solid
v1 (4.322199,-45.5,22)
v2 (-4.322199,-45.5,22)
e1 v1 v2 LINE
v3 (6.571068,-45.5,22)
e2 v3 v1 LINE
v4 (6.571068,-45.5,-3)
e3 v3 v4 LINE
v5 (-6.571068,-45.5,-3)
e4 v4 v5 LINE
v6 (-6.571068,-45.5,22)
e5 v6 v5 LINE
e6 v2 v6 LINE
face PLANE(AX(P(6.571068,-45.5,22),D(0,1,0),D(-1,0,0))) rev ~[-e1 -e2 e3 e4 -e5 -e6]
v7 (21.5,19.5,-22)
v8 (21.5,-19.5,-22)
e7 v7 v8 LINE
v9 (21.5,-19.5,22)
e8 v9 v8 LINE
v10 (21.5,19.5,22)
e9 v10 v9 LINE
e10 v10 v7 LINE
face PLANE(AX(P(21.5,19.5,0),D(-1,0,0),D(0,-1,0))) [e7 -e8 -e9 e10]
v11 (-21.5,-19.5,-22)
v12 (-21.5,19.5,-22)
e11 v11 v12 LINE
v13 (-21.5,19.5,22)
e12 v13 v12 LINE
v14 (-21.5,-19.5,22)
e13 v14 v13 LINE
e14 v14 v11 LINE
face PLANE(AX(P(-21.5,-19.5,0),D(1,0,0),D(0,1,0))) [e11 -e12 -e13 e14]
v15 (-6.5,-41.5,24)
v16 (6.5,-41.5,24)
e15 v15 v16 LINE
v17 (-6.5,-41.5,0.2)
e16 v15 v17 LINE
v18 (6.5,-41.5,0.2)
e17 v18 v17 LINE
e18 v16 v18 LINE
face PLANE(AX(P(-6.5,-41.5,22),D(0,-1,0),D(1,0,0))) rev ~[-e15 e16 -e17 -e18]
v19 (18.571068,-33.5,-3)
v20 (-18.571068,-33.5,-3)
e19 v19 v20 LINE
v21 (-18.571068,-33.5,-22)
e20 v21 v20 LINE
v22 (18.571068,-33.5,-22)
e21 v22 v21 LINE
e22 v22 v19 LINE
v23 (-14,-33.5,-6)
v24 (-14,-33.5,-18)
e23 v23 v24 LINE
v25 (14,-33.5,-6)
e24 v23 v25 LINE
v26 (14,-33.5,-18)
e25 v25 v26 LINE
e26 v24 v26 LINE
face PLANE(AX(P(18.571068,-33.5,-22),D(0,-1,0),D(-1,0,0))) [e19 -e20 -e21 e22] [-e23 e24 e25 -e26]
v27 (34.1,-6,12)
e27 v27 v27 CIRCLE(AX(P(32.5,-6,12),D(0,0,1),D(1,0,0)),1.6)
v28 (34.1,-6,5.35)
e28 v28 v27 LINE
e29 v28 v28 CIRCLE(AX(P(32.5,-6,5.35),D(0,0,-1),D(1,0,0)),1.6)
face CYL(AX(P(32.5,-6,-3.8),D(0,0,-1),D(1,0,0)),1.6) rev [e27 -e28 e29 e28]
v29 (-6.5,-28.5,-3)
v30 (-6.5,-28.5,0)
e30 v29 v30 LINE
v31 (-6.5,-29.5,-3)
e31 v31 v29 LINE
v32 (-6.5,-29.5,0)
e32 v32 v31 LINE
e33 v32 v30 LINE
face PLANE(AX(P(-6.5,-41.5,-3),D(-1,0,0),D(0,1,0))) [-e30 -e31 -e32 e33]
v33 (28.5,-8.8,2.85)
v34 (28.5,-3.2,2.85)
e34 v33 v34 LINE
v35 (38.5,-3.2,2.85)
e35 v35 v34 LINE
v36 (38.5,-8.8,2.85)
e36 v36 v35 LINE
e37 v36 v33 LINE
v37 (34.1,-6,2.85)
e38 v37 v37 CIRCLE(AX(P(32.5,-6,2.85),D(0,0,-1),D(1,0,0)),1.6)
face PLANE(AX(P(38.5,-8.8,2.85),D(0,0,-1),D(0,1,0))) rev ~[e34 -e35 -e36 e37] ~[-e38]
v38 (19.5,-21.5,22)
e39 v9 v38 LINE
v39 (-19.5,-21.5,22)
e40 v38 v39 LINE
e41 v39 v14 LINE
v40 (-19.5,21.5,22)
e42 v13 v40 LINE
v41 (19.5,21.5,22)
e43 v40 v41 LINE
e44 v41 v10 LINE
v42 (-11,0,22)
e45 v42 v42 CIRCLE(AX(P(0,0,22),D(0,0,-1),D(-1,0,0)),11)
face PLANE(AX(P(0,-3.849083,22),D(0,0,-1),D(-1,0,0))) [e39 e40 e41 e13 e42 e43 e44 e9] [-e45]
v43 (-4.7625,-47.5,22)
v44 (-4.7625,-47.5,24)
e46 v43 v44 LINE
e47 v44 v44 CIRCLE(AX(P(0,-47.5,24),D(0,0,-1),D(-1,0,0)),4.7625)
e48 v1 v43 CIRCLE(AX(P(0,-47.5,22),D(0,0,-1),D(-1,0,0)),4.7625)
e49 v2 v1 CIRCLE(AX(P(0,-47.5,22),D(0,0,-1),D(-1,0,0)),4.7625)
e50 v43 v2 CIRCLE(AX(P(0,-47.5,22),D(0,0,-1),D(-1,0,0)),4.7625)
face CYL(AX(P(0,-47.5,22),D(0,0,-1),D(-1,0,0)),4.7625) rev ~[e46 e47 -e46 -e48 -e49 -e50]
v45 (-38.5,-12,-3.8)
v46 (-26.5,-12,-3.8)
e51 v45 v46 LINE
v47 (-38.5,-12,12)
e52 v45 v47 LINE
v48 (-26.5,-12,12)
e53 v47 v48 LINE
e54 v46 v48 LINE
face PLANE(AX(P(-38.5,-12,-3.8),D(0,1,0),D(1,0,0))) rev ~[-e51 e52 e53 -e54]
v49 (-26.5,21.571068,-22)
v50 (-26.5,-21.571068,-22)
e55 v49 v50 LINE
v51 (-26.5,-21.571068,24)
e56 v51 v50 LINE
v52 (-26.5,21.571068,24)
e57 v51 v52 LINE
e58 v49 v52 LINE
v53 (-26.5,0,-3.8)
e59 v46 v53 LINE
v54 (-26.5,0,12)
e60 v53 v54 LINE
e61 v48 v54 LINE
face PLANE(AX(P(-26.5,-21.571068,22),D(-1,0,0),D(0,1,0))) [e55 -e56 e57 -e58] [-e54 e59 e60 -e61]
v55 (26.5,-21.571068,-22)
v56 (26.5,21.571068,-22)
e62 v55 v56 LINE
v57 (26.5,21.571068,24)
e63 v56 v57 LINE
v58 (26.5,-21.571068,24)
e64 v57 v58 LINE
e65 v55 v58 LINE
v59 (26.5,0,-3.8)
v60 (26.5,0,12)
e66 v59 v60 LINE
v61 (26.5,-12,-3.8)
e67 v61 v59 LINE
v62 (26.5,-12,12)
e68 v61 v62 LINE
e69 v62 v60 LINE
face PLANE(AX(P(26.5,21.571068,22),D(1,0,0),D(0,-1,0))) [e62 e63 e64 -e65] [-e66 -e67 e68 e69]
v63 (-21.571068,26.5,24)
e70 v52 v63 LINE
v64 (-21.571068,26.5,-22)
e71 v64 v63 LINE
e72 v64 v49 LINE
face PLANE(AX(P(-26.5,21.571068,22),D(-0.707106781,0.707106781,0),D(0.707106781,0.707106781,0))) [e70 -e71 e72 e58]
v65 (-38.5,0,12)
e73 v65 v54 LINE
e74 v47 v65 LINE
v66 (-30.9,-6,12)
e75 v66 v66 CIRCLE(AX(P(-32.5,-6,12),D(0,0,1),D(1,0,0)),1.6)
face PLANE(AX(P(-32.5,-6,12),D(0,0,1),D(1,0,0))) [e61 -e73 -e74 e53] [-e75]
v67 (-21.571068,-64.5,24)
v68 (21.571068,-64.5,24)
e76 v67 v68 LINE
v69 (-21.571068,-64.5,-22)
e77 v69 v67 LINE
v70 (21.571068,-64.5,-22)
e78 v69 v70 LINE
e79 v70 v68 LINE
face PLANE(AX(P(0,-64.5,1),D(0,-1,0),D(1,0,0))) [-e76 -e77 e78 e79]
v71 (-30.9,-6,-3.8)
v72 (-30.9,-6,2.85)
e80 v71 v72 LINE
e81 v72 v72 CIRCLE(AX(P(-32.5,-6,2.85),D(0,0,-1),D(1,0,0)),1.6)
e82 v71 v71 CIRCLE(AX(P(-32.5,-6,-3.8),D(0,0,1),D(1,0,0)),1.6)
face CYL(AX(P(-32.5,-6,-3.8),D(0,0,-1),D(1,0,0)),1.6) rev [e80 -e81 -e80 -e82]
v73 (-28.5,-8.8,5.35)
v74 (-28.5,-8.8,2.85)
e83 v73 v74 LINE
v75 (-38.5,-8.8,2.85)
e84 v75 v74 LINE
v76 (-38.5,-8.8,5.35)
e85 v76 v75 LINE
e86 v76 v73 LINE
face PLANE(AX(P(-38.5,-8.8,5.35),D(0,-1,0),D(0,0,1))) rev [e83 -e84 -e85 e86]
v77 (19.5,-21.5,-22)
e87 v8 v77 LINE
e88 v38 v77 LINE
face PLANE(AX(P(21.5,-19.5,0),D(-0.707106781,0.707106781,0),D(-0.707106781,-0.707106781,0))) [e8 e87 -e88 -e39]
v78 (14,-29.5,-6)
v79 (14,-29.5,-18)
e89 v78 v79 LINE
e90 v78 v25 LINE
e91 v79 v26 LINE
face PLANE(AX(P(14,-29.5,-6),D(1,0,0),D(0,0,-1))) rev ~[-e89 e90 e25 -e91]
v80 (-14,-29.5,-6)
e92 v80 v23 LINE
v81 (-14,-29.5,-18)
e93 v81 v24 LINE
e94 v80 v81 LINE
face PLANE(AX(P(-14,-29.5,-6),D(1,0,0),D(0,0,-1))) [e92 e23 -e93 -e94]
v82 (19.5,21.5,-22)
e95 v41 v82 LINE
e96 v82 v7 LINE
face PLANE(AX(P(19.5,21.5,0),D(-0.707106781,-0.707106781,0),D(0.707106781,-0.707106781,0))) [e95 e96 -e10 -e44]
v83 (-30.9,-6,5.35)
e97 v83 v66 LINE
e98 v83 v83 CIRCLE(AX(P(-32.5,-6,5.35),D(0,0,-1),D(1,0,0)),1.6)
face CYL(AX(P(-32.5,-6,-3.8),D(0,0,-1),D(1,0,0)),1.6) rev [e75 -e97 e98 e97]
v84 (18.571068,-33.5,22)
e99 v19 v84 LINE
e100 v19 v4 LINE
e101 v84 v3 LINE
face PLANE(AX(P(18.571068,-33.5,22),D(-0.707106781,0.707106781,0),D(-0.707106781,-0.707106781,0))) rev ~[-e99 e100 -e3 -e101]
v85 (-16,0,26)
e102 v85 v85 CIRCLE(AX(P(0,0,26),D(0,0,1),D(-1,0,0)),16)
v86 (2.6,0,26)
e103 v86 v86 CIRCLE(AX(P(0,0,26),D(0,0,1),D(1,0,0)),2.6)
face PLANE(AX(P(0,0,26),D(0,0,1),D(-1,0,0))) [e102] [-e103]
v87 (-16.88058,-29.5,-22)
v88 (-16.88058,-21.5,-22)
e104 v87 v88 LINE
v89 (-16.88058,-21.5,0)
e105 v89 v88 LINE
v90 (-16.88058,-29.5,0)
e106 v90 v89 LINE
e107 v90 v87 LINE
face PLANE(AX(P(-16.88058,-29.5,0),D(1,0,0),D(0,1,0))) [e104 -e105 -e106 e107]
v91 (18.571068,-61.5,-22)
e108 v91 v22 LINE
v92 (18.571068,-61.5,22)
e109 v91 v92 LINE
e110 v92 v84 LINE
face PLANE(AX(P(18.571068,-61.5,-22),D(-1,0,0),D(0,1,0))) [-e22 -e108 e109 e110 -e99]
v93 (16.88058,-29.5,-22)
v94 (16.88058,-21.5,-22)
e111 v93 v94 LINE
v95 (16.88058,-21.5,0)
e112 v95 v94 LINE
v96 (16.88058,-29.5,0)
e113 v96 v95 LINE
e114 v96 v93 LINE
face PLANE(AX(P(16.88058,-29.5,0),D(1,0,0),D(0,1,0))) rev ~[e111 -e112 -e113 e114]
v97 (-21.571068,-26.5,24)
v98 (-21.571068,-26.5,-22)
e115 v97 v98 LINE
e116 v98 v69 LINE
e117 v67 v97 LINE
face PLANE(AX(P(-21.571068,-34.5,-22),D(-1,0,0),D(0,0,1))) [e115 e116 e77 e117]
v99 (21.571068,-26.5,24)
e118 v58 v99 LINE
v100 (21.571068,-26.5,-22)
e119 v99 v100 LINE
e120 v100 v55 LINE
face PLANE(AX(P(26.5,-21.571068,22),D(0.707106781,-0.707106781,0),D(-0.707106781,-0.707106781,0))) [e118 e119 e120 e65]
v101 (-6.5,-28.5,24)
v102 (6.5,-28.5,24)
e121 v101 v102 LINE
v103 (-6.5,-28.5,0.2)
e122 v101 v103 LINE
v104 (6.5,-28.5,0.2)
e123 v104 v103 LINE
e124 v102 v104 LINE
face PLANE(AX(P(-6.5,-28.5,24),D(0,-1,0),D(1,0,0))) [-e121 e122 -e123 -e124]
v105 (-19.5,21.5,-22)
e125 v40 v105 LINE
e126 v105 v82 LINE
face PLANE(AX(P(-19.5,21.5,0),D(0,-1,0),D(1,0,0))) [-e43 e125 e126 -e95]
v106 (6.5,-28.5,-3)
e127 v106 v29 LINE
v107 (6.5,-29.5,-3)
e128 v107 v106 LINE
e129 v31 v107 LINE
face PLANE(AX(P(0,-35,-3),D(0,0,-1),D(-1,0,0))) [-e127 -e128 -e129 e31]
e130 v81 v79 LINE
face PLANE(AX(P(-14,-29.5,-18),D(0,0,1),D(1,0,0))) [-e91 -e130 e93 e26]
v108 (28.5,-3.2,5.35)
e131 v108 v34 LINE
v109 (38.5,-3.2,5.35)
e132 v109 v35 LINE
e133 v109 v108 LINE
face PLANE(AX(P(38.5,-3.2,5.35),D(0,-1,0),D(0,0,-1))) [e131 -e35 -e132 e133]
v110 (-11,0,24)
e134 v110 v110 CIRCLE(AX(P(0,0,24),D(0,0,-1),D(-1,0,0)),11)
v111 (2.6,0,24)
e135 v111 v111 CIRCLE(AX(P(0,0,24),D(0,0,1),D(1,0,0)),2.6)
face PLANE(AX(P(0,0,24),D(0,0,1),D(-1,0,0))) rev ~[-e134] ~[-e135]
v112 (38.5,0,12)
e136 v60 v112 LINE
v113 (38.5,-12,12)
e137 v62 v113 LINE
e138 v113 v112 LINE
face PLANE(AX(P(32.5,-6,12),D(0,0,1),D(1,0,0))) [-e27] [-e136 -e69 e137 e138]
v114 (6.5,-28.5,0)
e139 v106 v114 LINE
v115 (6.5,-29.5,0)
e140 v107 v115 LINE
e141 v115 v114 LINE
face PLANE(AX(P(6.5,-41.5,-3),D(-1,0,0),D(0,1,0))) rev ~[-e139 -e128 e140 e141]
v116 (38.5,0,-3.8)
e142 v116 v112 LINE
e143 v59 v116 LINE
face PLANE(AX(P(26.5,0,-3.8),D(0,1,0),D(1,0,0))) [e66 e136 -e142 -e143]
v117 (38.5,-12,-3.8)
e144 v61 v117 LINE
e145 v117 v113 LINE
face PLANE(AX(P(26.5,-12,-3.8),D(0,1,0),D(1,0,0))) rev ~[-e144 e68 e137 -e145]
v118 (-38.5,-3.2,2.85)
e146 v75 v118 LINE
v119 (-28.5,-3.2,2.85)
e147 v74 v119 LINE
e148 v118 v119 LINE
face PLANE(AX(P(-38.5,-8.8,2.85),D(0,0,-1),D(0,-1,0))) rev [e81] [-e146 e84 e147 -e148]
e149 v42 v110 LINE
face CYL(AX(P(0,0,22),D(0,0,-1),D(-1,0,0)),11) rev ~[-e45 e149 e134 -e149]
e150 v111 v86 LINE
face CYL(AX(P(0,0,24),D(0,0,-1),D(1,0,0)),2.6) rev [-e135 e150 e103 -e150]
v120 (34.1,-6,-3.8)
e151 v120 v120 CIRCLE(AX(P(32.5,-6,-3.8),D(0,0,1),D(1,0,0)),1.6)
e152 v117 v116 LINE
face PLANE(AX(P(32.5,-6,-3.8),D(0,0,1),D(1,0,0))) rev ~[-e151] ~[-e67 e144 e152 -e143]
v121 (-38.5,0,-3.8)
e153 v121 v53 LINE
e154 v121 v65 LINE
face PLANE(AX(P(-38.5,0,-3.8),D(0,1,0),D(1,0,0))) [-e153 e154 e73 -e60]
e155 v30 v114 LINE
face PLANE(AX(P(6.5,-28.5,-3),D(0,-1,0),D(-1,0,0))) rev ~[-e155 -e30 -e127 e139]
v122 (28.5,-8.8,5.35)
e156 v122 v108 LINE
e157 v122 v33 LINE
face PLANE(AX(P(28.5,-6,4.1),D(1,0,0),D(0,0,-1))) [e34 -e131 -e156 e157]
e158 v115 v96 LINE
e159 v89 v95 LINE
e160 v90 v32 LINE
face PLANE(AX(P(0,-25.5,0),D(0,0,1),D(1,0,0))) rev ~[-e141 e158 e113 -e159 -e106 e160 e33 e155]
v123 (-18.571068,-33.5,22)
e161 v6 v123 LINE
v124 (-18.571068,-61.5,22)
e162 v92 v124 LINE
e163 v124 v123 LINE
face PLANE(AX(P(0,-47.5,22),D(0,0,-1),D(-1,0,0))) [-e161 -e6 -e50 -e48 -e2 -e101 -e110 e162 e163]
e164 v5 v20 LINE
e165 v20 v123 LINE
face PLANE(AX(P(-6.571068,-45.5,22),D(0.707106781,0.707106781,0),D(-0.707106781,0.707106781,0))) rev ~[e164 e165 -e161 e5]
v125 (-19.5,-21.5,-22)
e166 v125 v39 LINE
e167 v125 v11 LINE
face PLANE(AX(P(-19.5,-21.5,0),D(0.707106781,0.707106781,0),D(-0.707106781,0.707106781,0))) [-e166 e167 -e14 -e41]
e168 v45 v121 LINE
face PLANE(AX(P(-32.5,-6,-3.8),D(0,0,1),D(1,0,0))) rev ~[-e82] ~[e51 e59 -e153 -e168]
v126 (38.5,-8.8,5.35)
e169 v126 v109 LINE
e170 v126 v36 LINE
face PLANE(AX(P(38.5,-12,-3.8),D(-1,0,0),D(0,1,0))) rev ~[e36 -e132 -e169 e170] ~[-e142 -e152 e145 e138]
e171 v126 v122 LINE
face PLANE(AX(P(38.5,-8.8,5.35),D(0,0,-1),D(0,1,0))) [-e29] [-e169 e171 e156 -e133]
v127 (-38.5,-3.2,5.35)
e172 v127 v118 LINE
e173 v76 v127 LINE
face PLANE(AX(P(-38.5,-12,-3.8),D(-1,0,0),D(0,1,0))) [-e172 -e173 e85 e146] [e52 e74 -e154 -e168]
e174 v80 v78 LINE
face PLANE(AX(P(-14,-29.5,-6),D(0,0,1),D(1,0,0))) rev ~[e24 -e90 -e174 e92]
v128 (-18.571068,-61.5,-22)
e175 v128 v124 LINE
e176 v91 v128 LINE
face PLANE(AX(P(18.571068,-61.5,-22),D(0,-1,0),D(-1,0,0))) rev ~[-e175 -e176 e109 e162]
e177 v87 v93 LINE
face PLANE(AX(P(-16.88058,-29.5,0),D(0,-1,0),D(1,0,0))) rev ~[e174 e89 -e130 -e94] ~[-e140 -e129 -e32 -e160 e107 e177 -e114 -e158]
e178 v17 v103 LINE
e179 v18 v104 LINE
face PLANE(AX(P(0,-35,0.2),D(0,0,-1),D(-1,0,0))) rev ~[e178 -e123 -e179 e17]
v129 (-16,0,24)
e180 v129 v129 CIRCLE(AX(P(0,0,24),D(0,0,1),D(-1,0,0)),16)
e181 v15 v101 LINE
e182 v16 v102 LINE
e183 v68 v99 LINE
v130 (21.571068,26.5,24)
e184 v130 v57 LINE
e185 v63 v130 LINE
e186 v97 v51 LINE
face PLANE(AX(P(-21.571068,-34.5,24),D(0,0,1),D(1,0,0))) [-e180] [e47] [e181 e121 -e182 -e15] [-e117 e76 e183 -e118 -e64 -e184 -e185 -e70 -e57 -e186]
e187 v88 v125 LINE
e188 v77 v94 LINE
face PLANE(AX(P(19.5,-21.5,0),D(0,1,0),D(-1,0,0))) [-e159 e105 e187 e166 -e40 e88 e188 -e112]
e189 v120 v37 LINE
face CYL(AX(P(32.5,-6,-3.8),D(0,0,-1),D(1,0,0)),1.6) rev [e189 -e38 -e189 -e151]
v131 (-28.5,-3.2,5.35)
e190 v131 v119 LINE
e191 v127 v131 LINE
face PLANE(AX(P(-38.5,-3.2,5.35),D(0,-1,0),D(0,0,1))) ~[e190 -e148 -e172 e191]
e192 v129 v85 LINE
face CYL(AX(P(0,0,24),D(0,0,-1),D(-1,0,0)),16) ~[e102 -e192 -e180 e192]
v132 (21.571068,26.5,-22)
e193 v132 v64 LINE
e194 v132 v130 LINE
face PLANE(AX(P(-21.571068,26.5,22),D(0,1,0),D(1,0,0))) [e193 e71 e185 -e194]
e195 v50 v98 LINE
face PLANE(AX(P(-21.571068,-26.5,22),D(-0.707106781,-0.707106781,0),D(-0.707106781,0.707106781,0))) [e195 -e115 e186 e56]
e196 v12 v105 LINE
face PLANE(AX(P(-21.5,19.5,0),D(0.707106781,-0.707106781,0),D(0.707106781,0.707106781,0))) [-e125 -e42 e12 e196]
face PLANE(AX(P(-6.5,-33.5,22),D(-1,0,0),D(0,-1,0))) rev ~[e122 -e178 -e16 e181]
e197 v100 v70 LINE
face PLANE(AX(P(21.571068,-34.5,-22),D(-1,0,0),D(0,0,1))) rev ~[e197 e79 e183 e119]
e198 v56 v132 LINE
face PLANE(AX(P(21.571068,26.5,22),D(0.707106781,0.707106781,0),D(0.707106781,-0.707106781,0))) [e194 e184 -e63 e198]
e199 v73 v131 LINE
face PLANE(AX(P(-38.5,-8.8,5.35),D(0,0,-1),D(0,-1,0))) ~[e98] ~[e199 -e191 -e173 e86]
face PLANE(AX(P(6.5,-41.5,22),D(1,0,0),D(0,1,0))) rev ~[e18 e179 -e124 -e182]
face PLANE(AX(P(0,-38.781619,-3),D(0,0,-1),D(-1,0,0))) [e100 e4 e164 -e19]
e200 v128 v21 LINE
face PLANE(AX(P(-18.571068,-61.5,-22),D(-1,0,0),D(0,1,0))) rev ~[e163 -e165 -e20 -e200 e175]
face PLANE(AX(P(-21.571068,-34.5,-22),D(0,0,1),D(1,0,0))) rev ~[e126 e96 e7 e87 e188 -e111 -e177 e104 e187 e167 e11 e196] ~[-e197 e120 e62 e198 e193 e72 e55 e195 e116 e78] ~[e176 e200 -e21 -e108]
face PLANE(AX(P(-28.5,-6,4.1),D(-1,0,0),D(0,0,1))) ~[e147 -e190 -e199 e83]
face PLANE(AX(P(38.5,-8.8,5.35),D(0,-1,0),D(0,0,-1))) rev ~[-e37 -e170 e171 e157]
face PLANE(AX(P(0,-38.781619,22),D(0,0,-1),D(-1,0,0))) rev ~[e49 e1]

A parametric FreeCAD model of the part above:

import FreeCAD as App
import Part
import Sketcher

V = App.Vector
Q = App.Units.Quantity

doc = App.newDocument("Part")
body = doc.addObject("PartDesign::Body", "Body")

# Sketch on XY plane
sketch1 = body.newObject("Sketcher::SketchObject", "Sketch")
sketch1.AttachmentSupport = (doc.getObject("XY_Plane"), [""])
sketch1.MapMode = "FlatFace"
sketch1.addGeometry(Part.LineSegment(V(26.5, -21.6, 0), V(26.5, 21.6, 0)), False)
sketch1.addGeometry(Part.LineSegment(V(26.5, 21.6, 0), V(21.6, 26.5, 0)), False)
sketch1.addGeometry(Part.LineSegment(V(21.6, 26.5, 0), V(-21.6, 26.5, 0)), False)
sketch1.addGeometry(Part.LineSegment(V(-21.6, 26.5, 0), V(-26.5, 21.6, 0)), False)
sketch1.addGeometry(Part.LineSegment(V(-26.5, 21.6, 0), V(-26.5, -21.6, 0)), False)
sketch1.addGeometry(Part.LineSegment(V(-26.5, -21.6, 0), V(-21.6, -26.5, 0)), False)
sketch1.addGeometry(Part.LineSegment(V(-21.6, -26.5, 0), V(21.6, -26.5, 0)), False)
sketch1.addGeometry(Part.LineSegment(V(21.6, -26.5, 0), V(26.5, -21.6, 0)), False)
sketch1.addGeometry(Part.LineSegment(V(19.5, -21.5, 0), V(-19.5, -21.5, 0)), False)
sketch1.addGeometry(Part.LineSegment(V(-19.5, -21.5, 0), V(-21.5, -19.5, 0)), False)
sketch1.addGeometry(Part.LineSegment(V(-21.5, -19.5, 0), V(-21.5, 19.5, 0)), False)
sketch1.addGeometry(Part.LineSegment(V(-21.5, 19.5, 0), V(-19.5, 21.5, 0)), False)
sketch1.addGeometry(Part.LineSegment(V(-19.5, 21.5, 0), V(19.5, 21.5, 0)), False)
sketch1.addGeometry(Part.LineSegment(V(19.5, 21.5, 0), V(21.5, 19.5, 0)), False)
sketch1.addGeometry(Part.LineSegment(V(21.5, 19.5, 0), V(21.5, -19.5, 0)), False)
sketch1.addGeometry(Part.LineSegment(V(21.5, -19.5, 0), V(19.5, -21.5, 0)), False)
sketch1.addConstraint(Sketcher.Constraint("Coincident", 0, 2, 1, 1))
sketch1.addConstraint(Sketcher.Constraint("Coincident", 1, 2, 2, 1))
sketch1.addConstraint(Sketcher.Constraint("Coincident", 2, 2, 3, 1))
sketch1.addConstraint(Sketcher.Constraint("Coincident", 3, 2, 4, 1))
sketch1.addConstraint(Sketcher.Constraint("Coincident", 4, 2, 5, 1))
sketch1.addConstraint(Sketcher.Constraint("Coincident", 5, 2, 6, 1))
sketch1.addConstraint(Sketcher.Constraint("Coincident", 6, 2, 7, 1))
sketch1.addConstraint(Sketcher.Constraint("Coincident", 7, 2, 0, 1))
sketch1.addConstraint(Sketcher.Constraint("Coincident", 8, 2, 9, 1))
sketch1.addConstraint(Sketcher.Constraint("Coincident", 9, 2, 10, 1))
sketch1.addConstraint(Sketcher.Constraint("Coincident", 10, 2, 11, 1))
sketch1.addConstraint(Sketcher.Constraint("Coincident", 11, 2, 12, 1))
sketch1.addConstraint(Sketcher.Constraint("Coincident", 12, 2, 13, 1))
sketch1.addConstraint(Sketcher.Constraint("Coincident", 13, 2, 14, 1))
sketch1.addConstraint(Sketcher.Constraint("Coincident", 14, 2, 15, 1))
sketch1.addConstraint(Sketcher.Constraint("Coincident", 15, 2, 8, 1))
sketch1.addConstraint(Sketcher.Constraint("Vertical", 0))
sketch1.addConstraint(Sketcher.Constraint("Horizontal", 2))
sketch1.addConstraint(Sketcher.Constraint("Vertical", 4))
sketch1.addConstraint(Sketcher.Constraint("Horizontal", 6))
sketch1.addConstraint(Sketcher.Constraint("Horizontal", 8))
sketch1.addConstraint(Sketcher.Constraint("Vertical", 10))
sketch1.addConstraint(Sketcher.Constraint("Horizontal", 12))
sketch1.addConstraint(Sketcher.Constraint("Vertical", 14))
sketch1.addConstraint(Sketcher.Constraint("Symmetric", 0, 2, 4, 2, -1, 1))
sketch1.addConstraint(Sketcher.Constraint("Symmetric", 1, 2, 5, 2, -1, 1))
sketch1.addConstraint(Sketcher.Constraint("Symmetric", 8, 2, 12, 2, -1, 1))
sketch1.addConstraint(Sketcher.Constraint("Symmetric", 9, 2, 13, 2, -1, 1))
sketch1.addConstraint(Sketcher.Constraint("Perpendicular", 1, 3))
sketch1.addConstraint(Sketcher.Constraint("Perpendicular", 5, 7))
sketch1.addConstraint(Sketcher.Constraint("Perpendicular", 7, 9))
sketch1.addConstraint(Sketcher.Constraint("Perpendicular", 9, 11))
sketch1.addConstraint(Sketcher.Constraint("Perpendicular", 13, 15))
sketch1.addConstraint(Sketcher.Constraint("Horizontal", 0, 2, 3, 2))
sketch1.addConstraint(Sketcher.Constraint("Horizontal", 4, 2, 7, 2))
sketch1.addConstraint(Sketcher.Constraint("Horizontal", 10, 2, 13, 2))
sketch1.addConstraint(Sketcher.Constraint("Horizontal", 9, 2, 14, 2))
sketch1.addConstraint(Sketcher.Constraint("Vertical", 2, 2, 5, 2))
sketch1.addConstraint(Sketcher.Constraint("Equal", 6, 0))
sketch1.addConstraint(Sketcher.Constraint("Equal", 12, 10))
sketch1.addConstraint(Sketcher.Constraint("DistanceX", 8, 2, 8, 1, Q("39 mm")))
sketch1.addConstraint(Sketcher.Constraint("DistanceX", 3, 2, 0, 2, Q("53 mm")))
sketch1.addConstraint(Sketcher.Constraint("DistanceY", 5, 2, 8, 2, Q("5 mm")))
sketch1.addConstraint(Sketcher.Constraint("DistanceX", 2, 2, 2, 1, Q("43.142136 mm")))
pad1 = body.newObject("PartDesign::Pad", "Pad")
pad1.Profile = sketch1
pad1.Length = 44
pad1.Midplane = True

# Sketch on XZ plane
sketch2 = body.newObject("Sketcher::SketchObject", "Sketch001")
sketch2.AttachmentSupport = (doc.getObject("XZ_Plane"), [""])
sketch2.MapMode = "FlatFace"
sketch2.AttachmentOffset = App.Placement(V(0, 0, 26.5), App.Rotation())
sketch2.addGeometry(Part.LineSegment(V(-22, 22, 0), V(-22, -22, 0)), False)
sketch2.addGeometry(Part.LineSegment(V(-22, -22, 0), V(22, -22, 0)), False)
sketch2.addGeometry(Part.LineSegment(V(22, -22, 0), V(22, 22, 0)), False)
sketch2.addGeometry(Part.LineSegment(V(22, 22, 0), V(-22, 22, 0)), False)
sketch2.addConstraint(Sketcher.Constraint("Coincident", 0, 2, 1, 1))
sketch2.addConstraint(Sketcher.Constraint("Coincident", 1, 2, 2, 1))
sketch2.addConstraint(Sketcher.Constraint("Coincident", 2, 2, 3, 1))
sketch2.addConstraint(Sketcher.Constraint("Coincident", 3, 2, 0, 1))
sketch2.addConstraint(Sketcher.Constraint("Vertical", 0))
sketch2.addConstraint(Sketcher.Constraint("Horizontal", 1))
sketch2.addConstraint(Sketcher.Constraint("Vertical", 2))
sketch2.addConstraint(Sketcher.Constraint("Horizontal", 3))
sketch2.addConstraint(Sketcher.Constraint("Symmetric", 0, 2, 2, 2, -1, 1))
sketch2.addConstraint(Sketcher.Constraint("DistanceY", 0, 2, 0, 1, Q("44 mm")))
sketch2.addConstraint(Sketcher.Constraint("DistanceX", 1, 1, 1, 2, Q("43.142136 mm")))
pad2 = body.newObject("PartDesign::Pad", "Pad001")
pad2.Profile = sketch2
pad2.Length = 8

# Sketch on XY plane
sketch3 = body.newObject("Sketcher::SketchObject", "Sketch002")
sketch3.AttachmentSupport = (doc.getObject("XY_Plane"), [""])
sketch3.MapMode = "FlatFace"
sketch3.addGeometry(Part.LineSegment(V(-17, -22, 0), V(-17, -30, 0)), False)
sketch3.addGeometry(Part.LineSegment(V(-17, -30, 0), V(17, -30, 0)), False)
sketch3.addGeometry(Part.LineSegment(V(17, -30, 0), V(17, -22, 0)), False)
sketch3.addGeometry(Part.LineSegment(V(17, -22, 0), V(-17, -22, 0)), False)
sketch3.addConstraint(Sketcher.Constraint("Coincident", 0, 2, 1, 1))
sketch3.addConstraint(Sketcher.Constraint("Coincident", 1, 2, 2, 1))
sketch3.addConstraint(Sketcher.Constraint("Coincident", 2, 2, 3, 1))
sketch3.addConstraint(Sketcher.Constraint("Coincident", 3, 2, 0, 1))
sketch3.addConstraint(Sketcher.Constraint("Vertical", 0))
sketch3.addConstraint(Sketcher.Constraint("Horizontal", 1))
sketch3.addConstraint(Sketcher.Constraint("Vertical", 2))
sketch3.addConstraint(Sketcher.Constraint("Horizontal", 3))
sketch3.addConstraint(Sketcher.Constraint("DistanceY", 0, 2, 0, 1, Q("8 mm")))
sketch3.addConstraint(Sketcher.Constraint("DistanceY", 0, 2, -1, 1, Q("29.5 mm")))
sketch3.addConstraint(Sketcher.Constraint("DistanceX", 1, 1, 1, 2, Q("33.761161 mm")))
sketch3.addConstraint(Sketcher.Constraint("DistanceX", 0, 2, -1, 1, Q("16.88058 mm")))
pocket1 = body.newObject("PartDesign::Pocket", "Pocket")
pocket1.Profile = sketch3
pocket1.Type = "ThroughAll"

# Sketch on XY plane
sketch4 = body.newObject("Sketcher::SketchObject", "Sketch003")
sketch4.AttachmentSupport = (doc.getObject("XY_Plane"), [""])
sketch4.MapMode = "FlatFace"
sketch4.AttachmentOffset = App.Placement(V(0, 0, 22), App.Rotation())
sketch4.addGeometry(Part.LineSegment(V(26, -22, 0), V(22, -26, 0)), False)
sketch4.addGeometry(Part.LineSegment(V(22, -26, 0), V(22, -34, 0)), False)
sketch4.addGeometry(Part.LineSegment(V(22, -34, 0), V(-22, -34, 0)), False)
sketch4.addGeometry(Part.LineSegment(V(-22, -34, 0), V(-22, -26, 0)), False)
sketch4.addGeometry(Part.LineSegment(V(-22, -26, 0), V(-26, -22, 0)), False)
sketch4.addGeometry(Part.LineSegment(V(-26, -22, 0), V(-26, 22, 0)), False)
sketch4.addGeometry(Part.LineSegment(V(-26, 22, 0), V(-22, 26, 0)), False)
sketch4.addGeometry(Part.LineSegment(V(-22, 26, 0), V(22, 26, 0)), False)
sketch4.addGeometry(Part.LineSegment(V(22, 26, 0), V(26, 22, 0)), False)
sketch4.addGeometry(Part.LineSegment(V(26, 22, 0), V(26, -22, 0)), False)
sketch4.addGeometry(Part.Circle(V(0, 0, 0), V(0, 0, 1), 11), False)
sketch4.addConstraint(Sketcher.Constraint("Coincident", 0, 2, 1, 1))
sketch4.addConstraint(Sketcher.Constraint("Coincident", 1, 2, 2, 1))
sketch4.addConstraint(Sketcher.Constraint("Coincident", 2, 2, 3, 1))
sketch4.addConstraint(Sketcher.Constraint("Coincident", 3, 2, 4, 1))
sketch4.addConstraint(Sketcher.Constraint("Coincident", 4, 2, 5, 1))
sketch4.addConstraint(Sketcher.Constraint("Coincident", 5, 2, 6, 1))
sketch4.addConstraint(Sketcher.Constraint("Coincident", 6, 2, 7, 1))
sketch4.addConstraint(Sketcher.Constraint("Coincident", 7, 2, 8, 1))
sketch4.addConstraint(Sketcher.Constraint("Coincident", 8, 2, 9, 1))
sketch4.addConstraint(Sketcher.Constraint("Coincident", 9, 2, 0, 1))
sketch4.addConstraint(Sketcher.Constraint("Vertical", 1))
sketch4.addConstraint(Sketcher.Constraint("Horizontal", 2))
sketch4.addConstraint(Sketcher.Constraint("Vertical", 3))
sketch4.addConstraint(Sketcher.Constraint("Vertical", 5))
sketch4.addConstraint(Sketcher.Constraint("Horizontal", 7))
sketch4.addConstraint(Sketcher.Constraint("Vertical", 9))
sketch4.addConstraint(Sketcher.Constraint("Coincident", 10, 3, -1, 1))
sketch4.addConstraint(Sketcher.Constraint("Symmetric", 0, 2, 6, 2, -1, 1))
sketch4.addConstraint(Sketcher.Constraint("Symmetric", 3, 2, 7, 2, -1, 1))
sketch4.addConstraint(Sketcher.Constraint("Symmetric", 4, 2, 8, 2, -1, 1))
sketch4.addConstraint(Sketcher.Constraint("Perpendicular", 0, 4))
sketch4.addConstraint(Sketcher.Constraint("Perpendicular", 4, 6))
sketch4.addConstraint(Sketcher.Constraint("Horizontal", 5, 2, 8, 2))
sketch4.addConstraint(Sketcher.Constraint("Vertical", 3, 2, 6, 2))
sketch4.addConstraint(Sketcher.Constraint("Equal", 7, 5))
sketch4.addConstraint(Sketcher.Constraint("Diameter", 10, Q("22 mm")))
sketch4.addConstraint(Sketcher.Constraint("DistanceY", 1, 2, 1, 1, Q("8 mm")))
sketch4.addConstraint(Sketcher.Constraint("DistanceY", 3, 2, 6, 2, Q("53 mm")))
sketch4.addConstraint(Sketcher.Constraint("DistanceX", 2, 2, 2, 1, Q("43.142136 mm")))
pad3 = body.newObject("PartDesign::Pad", "Pad002")
pad3.Profile = sketch4
pad3.Length = 2

# Sketch on XY plane
sketch5 = body.newObject("Sketcher::SketchObject", "Sketch004")
sketch5.AttachmentSupport = (doc.getObject("XY_Plane"), [""])
sketch5.MapMode = "FlatFace"
sketch5.AttachmentOffset = App.Placement(V(0, 0, 24), App.Rotation())
sketch5.addGeometry(Part.Circle(V(0, 0, 0), V(0, 0, 1), 16), False)
sketch5.addGeometry(Part.Circle(V(0, 0, 0), V(0, 0, 1), 2.6), False)
sketch5.addConstraint(Sketcher.Constraint("Coincident", 0, 3, -1, 1))
sketch5.addConstraint(Sketcher.Constraint("Coincident", 1, 3, -1, 1))
sketch5.addConstraint(Sketcher.Constraint("Diameter", 0, Q("32 mm")))
sketch5.addConstraint(Sketcher.Constraint("Diameter", 1, Q("5.2 mm")))
pad4 = body.newObject("PartDesign::Pad", "Pad003")
pad4.Profile = sketch5
pad4.Length = 2

# Sketch on XZ plane
sketch6 = body.newObject("Sketcher::SketchObject", "Sketch005")
sketch6.AttachmentSupport = (doc.getObject("XZ_Plane"), [""])
sketch6.MapMode = "FlatFace"
sketch6.AttachmentOffset = App.Placement(V(0, 0, 29.5), App.Rotation())
sketch6.addGeometry(Part.LineSegment(V(-14, -18, 0), V(-14, -6, 0)), False)
sketch6.addGeometry(Part.LineSegment(V(-14, -6, 0), V(14, -6, 0)), False)
sketch6.addGeometry(Part.LineSegment(V(14, -6, 0), V(14, -18, 0)), False)
sketch6.addGeometry(Part.LineSegment(V(14, -18, 0), V(-14, -18, 0)), False)
sketch6.addConstraint(Sketcher.Constraint("Coincident", 0, 2, 1, 1))
sketch6.addConstraint(Sketcher.Constraint("Coincident", 1, 2, 2, 1))
sketch6.addConstraint(Sketcher.Constraint("Coincident", 2, 2, 3, 1))
sketch6.addConstraint(Sketcher.Constraint("Coincident", 3, 2, 0, 1))
sketch6.addConstraint(Sketcher.Constraint("Vertical", 0))
sketch6.addConstraint(Sketcher.Constraint("Horizontal", 1))
sketch6.addConstraint(Sketcher.Constraint("Vertical", 2))
sketch6.addConstraint(Sketcher.Constraint("Horizontal", 3))
sketch6.addConstraint(Sketcher.Constraint("DistanceX", 1, 1, 1, 2, Q("28 mm")))
sketch6.addConstraint(Sketcher.Constraint("DistanceY", 0, 1, 0, 2, Q("12 mm")))
sketch6.addConstraint(Sketcher.Constraint("DistanceX", 0, 2, -1, 1, Q("14 mm")))
sketch6.addConstraint(Sketcher.Constraint("DistanceY", 0, 2, -1, 1, Q("6 mm")))
pocket2 = body.newObject("PartDesign::Pocket", "Pocket001")
pocket2.Profile = sketch6
pocket2.Length = 13
pocket2.Reversed = True

# Sketch on XY plane
sketch7 = body.newObject("Sketcher::SketchObject", "Sketch006")
sketch7.AttachmentSupport = (doc.getObject("XY_Plane"), [""])
sketch7.MapMode = "FlatFace"
sketch7.addGeometry(Part.LineSegment(V(-38.5, 0, 0), V(-38.5, -12, 0)), False)
sketch7.addGeometry(Part.LineSegment(V(-38.5, -12, 0), V(-26.5, -12, 0)), False)
sketch7.addGeometry(Part.LineSegment(V(-26.5, -12, 0), V(-26.5, 0, 0)), False)
sketch7.addGeometry(Part.LineSegment(V(-26.5, 0, 0), V(-38.5, 0, 0)), False)
sketch7.addGeometry(Part.Circle(V(-32.5, -6, 0), V(0, 0, 1), 1.6), False)
sketch7.addGeometry(Part.LineSegment(V(26.5, 0, 0), V(26.5, -12, 0)), False)
sketch7.addGeometry(Part.LineSegment(V(26.5, -12, 0), V(38.5, -12, 0)), False)
sketch7.addGeometry(Part.LineSegment(V(38.5, -12, 0), V(38.5, 0, 0)), False)
sketch7.addGeometry(Part.LineSegment(V(38.5, 0, 0), V(26.5, 0, 0)), False)
sketch7.addGeometry(Part.Circle(V(32.5, -6, 0), V(0, 0, 1), 1.6), False)
sketch7.addConstraint(Sketcher.Constraint("Coincident", 0, 2, 1, 1))
sketch7.addConstraint(Sketcher.Constraint("Coincident", 1, 2, 2, 1))
sketch7.addConstraint(Sketcher.Constraint("Coincident", 2, 2, 3, 1))
sketch7.addConstraint(Sketcher.Constraint("Coincident", 3, 2, 0, 1))
sketch7.addConstraint(Sketcher.Constraint("Coincident", 5, 2, 6, 1))
sketch7.addConstraint(Sketcher.Constraint("Coincident", 6, 2, 7, 1))
sketch7.addConstraint(Sketcher.Constraint("Coincident", 7, 2, 8, 1))
sketch7.addConstraint(Sketcher.Constraint("Coincident", 8, 2, 5, 1))
sketch7.addConstraint(Sketcher.Constraint("Vertical", 0))
sketch7.addConstraint(Sketcher.Constraint("Horizontal", 1))
sketch7.addConstraint(Sketcher.Constraint("Vertical", 2))
sketch7.addConstraint(Sketcher.Constraint("Horizontal", 3))
sketch7.addConstraint(Sketcher.Constraint("Vertical", 5))
sketch7.addConstraint(Sketcher.Constraint("Horizontal", 6))
sketch7.addConstraint(Sketcher.Constraint("Vertical", 7))
sketch7.addConstraint(Sketcher.Constraint("Horizontal", 8))
sketch7.addConstraint(Sketcher.Constraint("Equal", 4, 9))
sketch7.addConstraint(Sketcher.Constraint("Symmetric", 3, 2, 7, 2, -1, 1))
sketch7.addConstraint(Sketcher.Constraint("Symmetric", 4, 3, 9, 3, -2))
sketch7.addConstraint(Sketcher.Constraint("Symmetric", 1, 2, 5, 2, -2))
sketch7.addConstraint(Sketcher.Constraint("PointOnObject", 2, 2, -1))
sketch7.addConstraint(Sketcher.Constraint("Equal", 8, 0))
sketch7.addConstraint(Sketcher.Constraint("Diameter", 4, Q("3.2 mm")))
sketch7.addConstraint(Sketcher.Constraint("DistanceX", 1, 1, 1, 2, Q("12 mm")))
sketch7.addConstraint(Sketcher.Constraint("DistanceY", 4, 3, -1, 1, Q("6 mm")))
sketch7.addConstraint(Sketcher.Constraint("DistanceX", 4, 3, 9, 3, Q("65 mm")))
sketch7.addConstraint(Sketcher.Constraint("DistanceX", 0, 2, 4, 3, Q("6 mm")))
pad5 = body.newObject("PartDesign::Pad", "Pad004")
pad5.Profile = sketch7
pad5.Type = "TwoLengths"
pad5.Length = 12
pad5.Length2 = 3.8

# Sketch on YZ plane
sketch8 = body.newObject("Sketcher::SketchObject", "Sketch007")
sketch8.AttachmentSupport = (doc.getObject("YZ_Plane"), [""])
sketch8.MapMode = "FlatFace"
sketch8.AttachmentOffset = App.Placement(V(0, 0, 38.5), App.Rotation())
sketch8.addGeometry(Part.LineSegment(V(-3.2, 5.3, 0), V(-8.8, 5.3, 0)), False)
sketch8.addGeometry(Part.LineSegment(V(-8.8, 5.3, 0), V(-8.8, 2.9, 0)), False)
sketch8.addGeometry(Part.LineSegment(V(-8.8, 2.9, 0), V(-3.2, 2.9, 0)), False)
sketch8.addGeometry(Part.LineSegment(V(-3.2, 2.9, 0), V(-3.2, 5.3, 0)), False)
sketch8.addConstraint(Sketcher.Constraint("Coincident", 0, 2, 1, 1))
sketch8.addConstraint(Sketcher.Constraint("Coincident", 1, 2, 2, 1))
sketch8.addConstraint(Sketcher.Constraint("Coincident", 2, 2, 3, 1))
sketch8.addConstraint(Sketcher.Constraint("Coincident", 3, 2, 0, 1))
sketch8.addConstraint(Sketcher.Constraint("Horizontal", 0))
sketch8.addConstraint(Sketcher.Constraint("Vertical", 1))
sketch8.addConstraint(Sketcher.Constraint("Horizontal", 2))
sketch8.addConstraint(Sketcher.Constraint("Vertical", 3))
sketch8.addConstraint(Sketcher.Constraint("DistanceX", 0, 2, 0, 1, Q("5.6 mm")))
sketch8.addConstraint(Sketcher.Constraint("DistanceY", 1, 2, 1, 1, Q("2.5 mm")))
sketch8.addConstraint(Sketcher.Constraint("DistanceX", 0, 2, -1, 1, Q("8.8 mm")))
sketch8.addConstraint(Sketcher.Constraint("DistanceY", -1, 1, 0, 2, Q("5.35 mm")))
pocket3 = body.newObject("PartDesign::Pocket", "Pocket002")
pocket3.Profile = sketch8
pocket3.Length = 10
doc.recompute()

mirrored = body.newObject("PartDesign::Mirrored", "Mirrored")
mirrored.Originals = [pocket3]
mirrored.MirrorPlane = (doc.getObject("YZ_Plane"), [""])
body.Tip = mirrored

# Sketch on XZ plane
sketch9 = body.newObject("Sketcher::SketchObject", "Sketch008")
sketch9.AttachmentSupport = (doc.getObject("XZ_Plane"), [""])
sketch9.MapMode = "FlatFace"
sketch9.AttachmentOffset = App.Placement(V(0, 0, 34.5), App.Rotation())
sketch9.addGeometry(Part.LineSegment(V(-22, 24, 0), V(-22, -22, 0)), False)
sketch9.addGeometry(Part.LineSegment(V(-22, -22, 0), V(22, -22, 0)), False)
sketch9.addGeometry(Part.LineSegment(V(22, -22, 0), V(22, 24, 0)), False)
sketch9.addGeometry(Part.LineSegment(V(22, 24, 0), V(-22, 24, 0)), False)
sketch9.addConstraint(Sketcher.Constraint("Coincident", 0, 2, 1, 1))
sketch9.addConstraint(Sketcher.Constraint("Coincident", 1, 2, 2, 1))
sketch9.addConstraint(Sketcher.Constraint("Coincident", 2, 2, 3, 1))
sketch9.addConstraint(Sketcher.Constraint("Coincident", 3, 2, 0, 1))
sketch9.addConstraint(Sketcher.Constraint("Vertical", 0))
sketch9.addConstraint(Sketcher.Constraint("Horizontal", 1))
sketch9.addConstraint(Sketcher.Constraint("Vertical", 2))
sketch9.addConstraint(Sketcher.Constraint("Horizontal", 3))
sketch9.addConstraint(Sketcher.Constraint("DistanceY", 0, 2, 0, 1, Q("46 mm")))
sketch9.addConstraint(Sketcher.Constraint("DistanceY", 0, 2, -1, 1, Q("22 mm")))
sketch9.addConstraint(Sketcher.Constraint("DistanceX", 1, 1, 1, 2, Q("43.142136 mm")))
sketch9.addConstraint(Sketcher.Constraint("DistanceX", 0, 2, -1, 1, Q("21.571068 mm")))
pad6 = body.newObject("PartDesign::Pad", "Pad005")
pad6.Profile = sketch9
pad6.Length = 30

# Sketch on XY plane
sketch10 = body.newObject("Sketcher::SketchObject", "Sketch009")
sketch10.AttachmentSupport = (doc.getObject("XY_Plane"), [""])
sketch10.MapMode = "FlatFace"
sketch10.AttachmentOffset = App.Placement(V(0, 0, -22), App.Rotation())
sketch10.addGeometry(Part.LineSegment(V(19, -34, 0), V(19, -62, 0)), False)
sketch10.addGeometry(Part.LineSegment(V(19, -62, 0), V(-19, -62, 0)), False)
sketch10.addGeometry(Part.LineSegment(V(-19, -62, 0), V(-19, -34, 0)), False)
sketch10.addGeometry(Part.LineSegment(V(-19, -34, 0), V(19, -34, 0)), False)
sketch10.addConstraint(Sketcher.Constraint("Coincident", 0, 2, 1, 1))
sketch10.addConstraint(Sketcher.Constraint("Coincident", 1, 2, 2, 1))
sketch10.addConstraint(Sketcher.Constraint("Coincident", 2, 2, 3, 1))
sketch10.addConstraint(Sketcher.Constraint("Coincident", 3, 2, 0, 1))
sketch10.addConstraint(Sketcher.Constraint("Vertical", 0))
sketch10.addConstraint(Sketcher.Constraint("Horizontal", 1))
sketch10.addConstraint(Sketcher.Constraint("Vertical", 2))
sketch10.addConstraint(Sketcher.Constraint("Horizontal", 3))
sketch10.addConstraint(Sketcher.Constraint("DistanceY", 0, 2, 0, 1, Q("28 mm")))
sketch10.addConstraint(Sketcher.Constraint("DistanceY", 0, 2, -1, 1, Q("61.5 mm")))
sketch10.addConstraint(Sketcher.Constraint("DistanceX", 1, 2, 1, 1, Q("37.142136 mm")))
sketch10.addConstraint(Sketcher.Constraint("DistanceX", -1, 1, 0, 2, Q("18.571068 mm")))
pocket4 = body.newObject("PartDesign::Pocket", "Pocket003")
pocket4.Profile = sketch10
pocket4.Length = 44
pocket4.Reversed = True

# Sketch on XY plane
sketch11 = body.newObject("Sketcher::SketchObject", "Sketch010")
sketch11.AttachmentSupport = (doc.getObject("XY_Plane"), [""])
sketch11.MapMode = "FlatFace"
sketch11.AttachmentOffset = App.Placement(V(0, 0, 24), App.Rotation())
sketch11.addGeometry(Part.LineSegment(V(-6, -28, 0), V(-6, -42, 0)), False)
sketch11.addGeometry(Part.LineSegment(V(-6, -42, 0), V(6, -42, 0)), False)
sketch11.addGeometry(Part.LineSegment(V(6, -42, 0), V(6, -28, 0)), False)
sketch11.addGeometry(Part.LineSegment(V(6, -28, 0), V(-6, -28, 0)), False)
sketch11.addConstraint(Sketcher.Constraint("Coincident", 0, 2, 1, 1))
sketch11.addConstraint(Sketcher.Constraint("Coincident", 1, 2, 2, 1))
sketch11.addConstraint(Sketcher.Constraint("Coincident", 2, 2, 3, 1))
sketch11.addConstraint(Sketcher.Constraint("Coincident", 3, 2, 0, 1))
sketch11.addConstraint(Sketcher.Constraint("Vertical", 0))
sketch11.addConstraint(Sketcher.Constraint("Horizontal", 1))
sketch11.addConstraint(Sketcher.Constraint("Vertical", 2))
sketch11.addConstraint(Sketcher.Constraint("Horizontal", 3))
sketch11.addConstraint(Sketcher.Constraint("Equal", 3, 0))
sketch11.addConstraint(Sketcher.Constraint("DistanceX", 1, 1, 1, 2, Q("13 mm")))
sketch11.addConstraint(Sketcher.Constraint("DistanceX", 0, 2, -1, 1, Q("6.5 mm")))
sketch11.addConstraint(Sketcher.Constraint("DistanceY", 0, 2, -1, 1, Q("41.5 mm")))
pocket5 = body.newObject("PartDesign::Pocket", "Pocket004")
pocket5.Profile = sketch11
pocket5.Length = 25

# Sketch on XY plane
sketch12 = body.newObject("Sketcher::SketchObject", "Sketch011")
sketch12.AttachmentSupport = (doc.getObject("XY_Plane"), [""])
sketch12.MapMode = "FlatFace"
sketch12.AttachmentOffset = App.Placement(V(0, 0, 22), App.Rotation())
sketch12.addGeometry(Part.Circle(V(0, -47.5, 0), V(0, 0, 1), 4.8), False)
sketch12.addConstraint(Sketcher.Constraint("PointOnObject", 0, 3, -2))
sketch12.addConstraint(Sketcher.Constraint("Diameter", 0, Q("9.525 mm")))
sketch12.addConstraint(Sketcher.Constraint("DistanceY", 0, 3, -1, 1, Q("47.5 mm")))
pocket6 = body.newObject("PartDesign::Pocket", "Pocket005")
pocket6.Profile = sketch12
pocket6.Length = 2
pocket6.Reversed = True

# Sketch on XY plane
sketch13 = body.newObject("Sketcher::SketchObject", "Sketch012")
sketch13.AttachmentSupport = (doc.getObject("XY_Plane"), [""])
sketch13.MapMode = "FlatFace"
sketch13.AttachmentOffset = App.Placement(V(0, 0, 22), App.Rotation())
sketch13.addGeometry(Part.LineSegment(V(6, -34, 0), V(19, -34, 0)), False)
sketch13.addGeometry(Part.LineSegment(V(19, -34, 0), V(7, -46, 0)), False)
sketch13.addGeometry(Part.LineSegment(V(7, -46, 0), V(-7, -46, 0)), False)
sketch13.addGeometry(Part.LineSegment(V(-7, -46, 0), V(-19, -34, 0)), False)
sketch13.addGeometry(Part.LineSegment(V(-19, -34, 0), V(-6, -34, 0)), False)
sketch13.addGeometry(Part.LineSegment(V(-6, -34, 0), V(-6, -42, 0)), False)
sketch13.addGeometry(Part.LineSegment(V(-6, -42, 0), V(6, -42, 0)), False)
sketch13.addGeometry(Part.LineSegment(V(6, -42, 0), V(6, -34, 0)), False)
sketch13.addConstraint(Sketcher.Constraint("Coincident", 0, 2, 1, 1))
sketch13.addConstraint(Sketcher.Constraint("Coincident", 1, 2, 2, 1))
sketch13.addConstraint(Sketcher.Constraint("Coincident", 2, 2, 3, 1))
sketch13.addConstraint(Sketcher.Constraint("Coincident", 3, 2, 4, 1))
sketch13.addConstraint(Sketcher.Constraint("Coincident", 4, 2, 5, 1))
sketch13.addConstraint(Sketcher.Constraint("Coincident", 5, 2, 6, 1))
sketch13.addConstraint(Sketcher.Constraint("Coincident", 6, 2, 7, 1))
sketch13.addConstraint(Sketcher.Constraint("Coincident", 7, 2, 0, 1))
sketch13.addConstraint(Sketcher.Constraint("Horizontal", 0))
sketch13.addConstraint(Sketcher.Constraint("Horizontal", 2))
sketch13.addConstraint(Sketcher.Constraint("Horizontal", 4))
sketch13.addConstraint(Sketcher.Constraint("Vertical", 5))
sketch13.addConstraint(Sketcher.Constraint("Horizontal", 6))
sketch13.addConstraint(Sketcher.Constraint("Vertical", 7))
sketch13.addConstraint(Sketcher.Constraint("Symmetric", 0, 2, 3, 2, -2))
sketch13.addConstraint(Sketcher.Constraint("Perpendicular", 1, 3))
sketch13.addConstraint(Sketcher.Constraint("Equal", 0, 4))
sketch13.addConstraint(Sketcher.Constraint("Equal", 1, 3))
sketch13.addConstraint(Sketcher.Constraint("DistanceX", 6, 1, 6, 2, Q("13 mm")))
sketch13.addConstraint(Sketcher.Constraint("DistanceY", 5, 2, 5, 1, Q("8 mm")))
sketch13.addConstraint(Sketcher.Constraint("DistanceX", 1, 2, 0, 2, Q("12 mm")))
sketch13.addConstraint(Sketcher.Constraint("DistanceY", 0, 2, -1, 1, Q("33.5 mm")))
sketch13.addConstraint(Sketcher.Constraint("DistanceX", 0, 1, 0, 2, Q("12.071068 mm")))
pad7 = body.newObject("PartDesign::Pad", "Pad006")
pad7.Profile = sketch13
pad7.Length = 25
pad7.Reversed = True

# Sketch on XY plane
sketch14 = body.newObject("Sketcher::SketchObject", "Sketch013")
sketch14.AttachmentSupport = (doc.getObject("XY_Plane"), [""])
sketch14.MapMode = "FlatFace"
sketch14.AttachmentOffset = App.Placement(V(0, 0, -3), App.Rotation())
sketch14.addGeometry(Part.LineSegment(V(6, -28, 0), V(6, -42, 0)), False)
sketch14.addGeometry(Part.LineSegment(V(6, -42, 0), V(-6, -42, 0)), False)
sketch14.addGeometry(Part.LineSegment(V(-6, -42, 0), V(-6, -28, 0)), False)
sketch14.addGeometry(Part.LineSegment(V(-6, -28, 0), V(6, -28, 0)), False)
sketch14.addConstraint(Sketcher.Constraint("Coincident", 0, 2, 1, 1))
sketch14.addConstraint(Sketcher.Constraint("Coincident", 1, 2, 2, 1))
sketch14.addConstraint(Sketcher.Constraint("Coincident", 2, 2, 3, 1))
sketch14.addConstraint(Sketcher.Constraint("Coincident", 3, 2, 0, 1))
sketch14.addConstraint(Sketcher.Constraint("Vertical", 0))
sketch14.addConstraint(Sketcher.Constraint("Horizontal", 1))
sketch14.addConstraint(Sketcher.Constraint("Vertical", 2))
sketch14.addConstraint(Sketcher.Constraint("Horizontal", 3))
sketch14.addConstraint(Sketcher.Constraint("Equal", 3, 0))
sketch14.addConstraint(Sketcher.Constraint("DistanceX", 1, 2, 1, 1, Q("13 mm")))
sketch14.addConstraint(Sketcher.Constraint("DistanceX", -1, 1, 0, 2, Q("6.5 mm")))
sketch14.addConstraint(Sketcher.Constraint("DistanceY", 0, 2, -1, 1, Q("41.5 mm")))
pad8 = body.newObject("PartDesign::Pad", "Pad007")
pad8.Profile = sketch14
pad8.Length = 3.2

doc.recompute()
